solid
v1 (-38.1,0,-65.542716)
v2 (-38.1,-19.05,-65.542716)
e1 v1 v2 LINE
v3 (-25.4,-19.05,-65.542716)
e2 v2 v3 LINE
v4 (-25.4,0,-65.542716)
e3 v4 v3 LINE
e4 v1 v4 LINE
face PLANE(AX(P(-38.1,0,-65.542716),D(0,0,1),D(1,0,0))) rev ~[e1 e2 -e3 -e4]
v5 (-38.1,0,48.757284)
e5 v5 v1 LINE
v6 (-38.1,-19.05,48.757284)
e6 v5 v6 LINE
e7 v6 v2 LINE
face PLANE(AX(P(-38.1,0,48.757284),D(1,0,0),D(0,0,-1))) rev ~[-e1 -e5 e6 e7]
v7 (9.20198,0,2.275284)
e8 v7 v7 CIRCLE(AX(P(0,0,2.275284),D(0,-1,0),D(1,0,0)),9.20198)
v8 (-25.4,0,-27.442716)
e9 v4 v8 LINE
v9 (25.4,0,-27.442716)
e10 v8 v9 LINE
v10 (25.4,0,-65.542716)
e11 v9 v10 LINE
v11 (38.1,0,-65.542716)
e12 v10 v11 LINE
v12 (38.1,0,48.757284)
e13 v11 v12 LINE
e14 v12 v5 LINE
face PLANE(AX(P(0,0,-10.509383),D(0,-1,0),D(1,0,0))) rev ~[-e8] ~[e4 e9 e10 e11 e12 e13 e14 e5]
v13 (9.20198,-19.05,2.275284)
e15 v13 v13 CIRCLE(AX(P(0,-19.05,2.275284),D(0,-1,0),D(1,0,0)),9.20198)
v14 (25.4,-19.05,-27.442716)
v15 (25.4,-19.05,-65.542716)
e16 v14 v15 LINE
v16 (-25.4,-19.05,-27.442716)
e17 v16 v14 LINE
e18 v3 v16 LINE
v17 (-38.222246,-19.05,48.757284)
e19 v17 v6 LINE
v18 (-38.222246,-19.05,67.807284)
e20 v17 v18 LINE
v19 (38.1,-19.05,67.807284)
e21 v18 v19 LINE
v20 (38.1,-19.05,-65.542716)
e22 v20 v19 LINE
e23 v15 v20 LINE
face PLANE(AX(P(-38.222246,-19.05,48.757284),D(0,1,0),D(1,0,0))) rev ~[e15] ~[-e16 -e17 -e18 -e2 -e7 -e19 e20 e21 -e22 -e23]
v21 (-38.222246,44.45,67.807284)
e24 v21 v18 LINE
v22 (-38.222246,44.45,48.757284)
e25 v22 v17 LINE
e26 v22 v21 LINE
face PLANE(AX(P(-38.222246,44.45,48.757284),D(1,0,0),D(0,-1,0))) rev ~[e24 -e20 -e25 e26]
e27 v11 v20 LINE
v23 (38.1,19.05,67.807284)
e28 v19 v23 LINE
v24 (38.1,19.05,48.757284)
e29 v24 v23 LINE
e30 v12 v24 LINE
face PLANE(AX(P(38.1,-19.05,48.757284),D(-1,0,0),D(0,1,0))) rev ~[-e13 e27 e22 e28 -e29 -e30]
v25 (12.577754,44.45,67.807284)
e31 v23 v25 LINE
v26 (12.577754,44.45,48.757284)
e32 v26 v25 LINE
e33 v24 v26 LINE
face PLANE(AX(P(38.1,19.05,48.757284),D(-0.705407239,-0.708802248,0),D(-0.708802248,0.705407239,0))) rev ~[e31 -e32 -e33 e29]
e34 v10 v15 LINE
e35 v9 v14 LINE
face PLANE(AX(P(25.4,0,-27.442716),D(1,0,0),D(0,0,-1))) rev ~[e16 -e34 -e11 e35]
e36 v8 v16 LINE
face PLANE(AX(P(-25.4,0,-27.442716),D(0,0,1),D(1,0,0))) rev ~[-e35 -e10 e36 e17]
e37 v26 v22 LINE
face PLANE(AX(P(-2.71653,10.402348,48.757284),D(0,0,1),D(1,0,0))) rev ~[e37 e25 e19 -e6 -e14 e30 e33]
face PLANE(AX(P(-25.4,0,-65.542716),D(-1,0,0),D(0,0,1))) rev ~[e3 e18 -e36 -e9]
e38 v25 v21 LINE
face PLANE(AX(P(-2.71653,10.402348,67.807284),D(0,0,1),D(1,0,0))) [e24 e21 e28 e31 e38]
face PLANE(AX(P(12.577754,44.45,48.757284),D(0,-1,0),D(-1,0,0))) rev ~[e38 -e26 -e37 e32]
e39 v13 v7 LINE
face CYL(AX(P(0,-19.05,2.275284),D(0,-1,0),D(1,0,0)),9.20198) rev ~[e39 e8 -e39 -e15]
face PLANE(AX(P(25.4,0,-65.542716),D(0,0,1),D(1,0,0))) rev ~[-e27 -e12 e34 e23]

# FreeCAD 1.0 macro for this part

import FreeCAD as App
import Part
import Sketcher

V = App.Vector
Q = App.Units.Quantity

doc = App.newDocument("Part")
body = doc.addObject("PartDesign::Body", "Body")

# Sketch on XZ plane
sketch1 = body.newObject("Sketcher::SketchObject", "Sketch")
sketch1.AttachmentSupport = (doc.getObject("XZ_Plane"), [""])
sketch1.MapMode = "FlatFace"
sketch1.addGeometry(Part.LineSegment(V(38, 49, 0), V(-38, 49, 0)), False)
sketch1.addGeometry(Part.LineSegment(V(-38, 49, 0), V(-38, -66, 0)), False)
sketch1.addGeometry(Part.LineSegment(V(-38, -66, 0), V(-25, -66, 0)), False)
sketch1.addGeometry(Part.LineSegment(V(-25, -66, 0), V(-25, -27, 0)), False)
sketch1.addGeometry(Part.LineSegment(V(-25, -27, 0), V(25, -27, 0)), False)
sketch1.addGeometry(Part.LineSegment(V(25, -27, 0), V(25, -66, 0)), False)
sketch1.addGeometry(Part.LineSegment(V(25, -66, 0), V(38, -66, 0)), False)
sketch1.addGeometry(Part.LineSegment(V(38, -66, 0), V(38, 49, 0)), False)
sketch1.addConstraint(Sketcher.Constraint("Coincident", 0, 2, 1, 1))
sketch1.addConstraint(Sketcher.Constraint("Coincident", 1, 2, 2, 1))
sketch1.addConstraint(Sketcher.Constraint("Coincident", 2, 2, 3, 1))
sketch1.addConstraint(Sketcher.Constraint("Coincident", 3, 2, 4, 1))
sketch1.addConstraint(Sketcher.Constraint("Coincident", 4, 2, 5, 1))
sketch1.addConstraint(Sketcher.Constraint("Coincident", 5, 2, 6, 1))
sketch1.addConstraint(Sketcher.Constraint("Coincident", 6, 2, 7, 1))
sketch1.addConstraint(Sketcher.Constraint("Coincident", 7, 2, 0, 1))
sketch1.addConstraint(Sketcher.Constraint("Horizontal", 0))
sketch1.addConstraint(Sketcher.Constraint("Vertical", 1))
sketch1.addConstraint(Sketcher.Constraint("Horizontal", 2))
sketch1.addConstraint(Sketcher.Constraint("Vertical", 3))
sketch1.addConstraint(Sketcher.Constraint("Horizontal", 4))
sketch1.addConstraint(Sketcher.Constraint("Vertical", 5))
sketch1.addConstraint(Sketcher.Constraint("Horizontal", 6))
sketch1.addConstraint(Sketcher.Constraint("Vertical", 7))
sketch1.addConstraint(Sketcher.Constraint("Symmetric", 2, 2, 5, 2, -2))
sketch1.addConstraint(Sketcher.Constraint("Equal", 2, 6))
sketch1.addConstraint(Sketcher.Constraint("DistanceX", 0, 2, 0, 1, Q("3 in")))
sketch1.addConstraint(Sketcher.Constraint("DistanceX", 4, 1, 4, 2, Q("2 in")))
sketch1.addConstraint(Sketcher.Constraint("DistanceY", 1, 2, 1, 1, Q("4.5 in")))
sketch1.addConstraint(Sketcher.Constraint("DistanceY", 3, 1, 3, 2, Q("1.5 in")))
sketch1.addConstraint(Sketcher.Constraint("DistanceY", -1, 1, 0, 2, Q("48.757284 mm")))
pad1 = body.newObject("PartDesign::Pad", "Pad")
pad1.Profile = sketch1
pad1.Length = Q("0.75 in")

# Sketch on XZ plane
sketch2 = body.newObject("Sketcher::SketchObject", "Sketch001")
sketch2.AttachmentSupport = (doc.getObject("XZ_Plane"), [""])
sketch2.MapMode = "FlatFace"
sketch2.AttachmentOffset = App.Placement(V(0, 0, 0.75 * 25.4), App.Rotation())
sketch2.addGeometry(Part.Circle(V(0, 2, 0), V(0, 0, 1), 9), False)
sketch2.addConstraint(Sketcher.Constraint("PointOnObject", 0, 3, -2))
sketch2.addConstraint(Sketcher.Constraint("Diameter", 0, Q("18.40396 mm")))
sketch2.addConstraint(Sketcher.Constraint("DistanceY", -1, 1, 0, 3, Q("2.275284 mm")))
pocket1 = body.newObject("PartDesign::Pocket", "Pocket")
pocket1.Profile = sketch2
pocket1.Length = Q("0.75 in")

# Sketch on XY plane
sketch3 = body.newObject("Sketcher::SketchObject", "Sketch002")
sketch3.AttachmentSupport = (doc.getObject("XY_Plane"), [""])
sketch3.MapMode = "FlatFace"
sketch3.AttachmentOffset = App.Placement(V(0, 0, 48.757284), App.Rotation())
sketch3.addGeometry(Part.LineSegment(V(-38, 44, 0), V(-38, -19, 0)), False)
sketch3.addGeometry(Part.LineSegment(V(-38, -19, 0), V(38, -19, 0)), False)
sketch3.addGeometry(Part.LineSegment(V(38, -19, 0), V(38, 19, 0)), False)
sketch3.addGeometry(Part.LineSegment(V(38, 19, 0), V(13, 44, 0)), False)
sketch3.addGeometry(Part.LineSegment(V(13, 44, 0), V(-38, 44, 0)), False)
sketch3.addConstraint(Sketcher.Constraint("Coincident", 0, 2, 1, 1))
sketch3.addConstraint(Sketcher.Constraint("Coincident", 1, 2, 2, 1))
sketch3.addConstraint(Sketcher.Constraint("Coincident", 2, 2, 3, 1))
sketch3.addConstraint(Sketcher.Constraint("Coincident", 3, 2, 4, 1))
sketch3.addConstraint(Sketcher.Constraint("Coincident", 4, 2, 0, 1))
sketch3.addConstraint(Sketcher.Constraint("Vertical", 0))
sketch3.addConstraint(Sketcher.Constraint("Horizontal", 1))
sketch3.addConstraint(Sketcher.Constraint("Vertical", 2))
sketch3.addConstraint(Sketcher.Constraint("Horizontal", 4))
sketch3.addConstraint(Sketcher.Constraint("DistanceX", 4, 2, 4, 1, Q("2 in")))
sketch3.addConstraint(Sketcher.Constraint("DistanceY", 0, 2, 0, 1, Q("2.5 in")))
sketch3.addConstraint(Sketcher.Constraint("DistanceY", 2, 1, 2, 2, Q("1.5 in")))
sketch3.addConstraint(Sketcher.Constraint("DistanceX", -1, 1, 1, 2, Q("1.5 in")))
sketch3.addConstraint(Sketcher.Constraint("DistanceY", 0, 2, -1, 1, Q("0.75 in")))
sketch3.addConstraint(Sketcher.Constraint("Distance", 3, Q("36.007569 mm")))
pad2 = body.newObject("PartDesign::Pad", "Pad001")
pad2.Profile = sketch3
pad2.Length = Q("0.75 in")

doc.recompute()
